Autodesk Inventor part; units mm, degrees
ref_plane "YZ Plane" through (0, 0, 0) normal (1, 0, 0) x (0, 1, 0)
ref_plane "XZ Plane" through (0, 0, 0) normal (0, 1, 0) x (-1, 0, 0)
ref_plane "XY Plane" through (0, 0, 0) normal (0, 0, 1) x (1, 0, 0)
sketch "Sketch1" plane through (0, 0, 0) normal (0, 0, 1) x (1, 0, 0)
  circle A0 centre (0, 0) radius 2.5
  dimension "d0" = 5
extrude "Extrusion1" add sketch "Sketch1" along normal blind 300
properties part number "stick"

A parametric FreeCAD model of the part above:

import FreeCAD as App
import Part
import Sketcher

doc = App.newDocument("Part")
params = doc.addObject("Spreadsheet::Sheet", "Params")
for row, (alias, value) in enumerate([
    ("sketch1_diameter", "5 mm"),
    ("pad1_length", "300 mm"),
], start=1):
    params.set(f"A{row}", alias)
    params.set(f"B{row}", "=" + value)
    params.setAlias(f"B{row}", alias)

body = doc.addObject("PartDesign::Body", "Body")

sketch1 = doc.addObject("Sketcher::SketchObject", "Sketch")
body.addObject(sketch1)
sketch1.AttachmentSupport = (doc.XY_Plane, [""])
sketch1.MapMode = "FlatFace"
sketch1.addGeometry(Part.Circle(App.Vector(0, 0, 0), App.Vector(0, 0, 1), 2.5), False)
sketch1.addConstraint(Sketcher.Constraint("Coincident", 0, 3, -1, 1))
sketch1.addConstraint(Sketcher.Constraint("Diameter", 0, 5.0))
sketch1.setExpression("Constraints[1]", "Params.sketch1_diameter")
pad1 = doc.addObject("PartDesign::Pad", "Pad")
body.addObject(pad1)
pad1.Profile = sketch1
pad1.setExpression("Length", "Params.pad1_length")

doc.recompute()
